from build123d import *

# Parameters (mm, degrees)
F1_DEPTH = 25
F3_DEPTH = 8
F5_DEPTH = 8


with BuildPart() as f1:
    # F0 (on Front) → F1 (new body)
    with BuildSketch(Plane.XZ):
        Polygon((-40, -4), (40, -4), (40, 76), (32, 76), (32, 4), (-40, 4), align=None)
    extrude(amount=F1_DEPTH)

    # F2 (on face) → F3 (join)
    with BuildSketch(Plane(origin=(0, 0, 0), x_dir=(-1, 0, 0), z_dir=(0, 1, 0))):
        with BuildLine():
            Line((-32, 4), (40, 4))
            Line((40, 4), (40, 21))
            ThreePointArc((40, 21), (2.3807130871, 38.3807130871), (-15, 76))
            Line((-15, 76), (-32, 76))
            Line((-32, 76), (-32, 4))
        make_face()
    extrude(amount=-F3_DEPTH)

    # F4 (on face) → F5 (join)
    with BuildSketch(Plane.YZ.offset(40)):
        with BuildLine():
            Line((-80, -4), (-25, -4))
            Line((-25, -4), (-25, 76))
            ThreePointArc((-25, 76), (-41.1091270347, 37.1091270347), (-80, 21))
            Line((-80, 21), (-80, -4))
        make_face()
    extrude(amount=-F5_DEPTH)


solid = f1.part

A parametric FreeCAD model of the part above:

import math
import FreeCAD as App
import Part
import Sketcher
from FreeCAD import Vector


def add_polygon(sketch, points):
    """Adds a closed chain of lines whose ends are joined by coincident constraints."""
    first, n = sketch.GeometryCount, len(points)
    for a, b in zip(points, points[1:] + points[:1]):
        sketch.addGeometry(Part.LineSegment(App.Vector(*a, 0), App.Vector(*b, 0)), False)
    for i in range(n):
        sketch.addConstraint(Sketcher.Constraint("Coincident", first + i, 2, first + (i + 1) % n, 1))

doc = App.newDocument("Part")
body = doc.addObject("PartDesign::Body", "Body")

# Sketch on XZ plane
sketch1 = doc.addObject("Sketcher::SketchObject", "Sketch")
body.addObject(sketch1)
sketch1.AttachmentSupport = (doc.XZ_Plane, [""])
sketch1.MapMode = "FlatFace"
add_polygon(sketch1, [(-40, -4), (40, -4), (40, 76), (32, 76), (32, 4), (-40, 4)])  # lines 0-5
sketch1.addConstraint([
    Sketcher.Constraint("Horizontal", 0),
    Sketcher.Constraint("Vertical", 1),
    Sketcher.Constraint("Horizontal", 2),
    Sketcher.Constraint("Vertical", 3),
    Sketcher.Constraint("Horizontal", 4),
    Sketcher.Constraint("Vertical", 5),
    Sketcher.Constraint("Symmetric", 0, 2, 4, 2, -1, 1),
    Sketcher.Constraint("Equal", 0, 1),
    Sketcher.Constraint("Equal", 4, 3),
    Sketcher.Constraint("DistanceX", 0, 1, 0, 2, 80.0),
    Sketcher.Constraint("DistanceX", 2, 2, 2, 1, 8.0),
])
pad1 = doc.addObject("PartDesign::Pad", "Pad")
body.addObject(pad1)
pad1.Profile = sketch1
pad1.Length = 25

# Sketch on XZ plane
sketch2 = doc.addObject("Sketcher::SketchObject", "Sketch001")
body.addObject(sketch2)
sketch2.AttachmentSupport = (doc.XZ_Plane, [""])
sketch2.MapMode = "FlatFace"
sketch2.addGeometry([
    Part.LineSegment(Vector(32, 4, 0), Vector(-40, 4, 0)),  # 0
    Part.LineSegment(Vector(-40, 4, 0), Vector(-40, 21, 0)),  # 1
    Part.ArcOfCircle(Part.Circle(Vector(-45, 81, 0), Vector(0, 0, 1), 60), math.radians(-85), math.radians(-5)),  # 2
    Part.LineSegment(Vector(15, 76, 0), Vector(32, 76, 0)),  # 3
    Part.LineSegment(Vector(32, 76, 0), Vector(32, 4, 0)),  # 4
], False)
sketch2.addConstraint([
    Sketcher.Constraint("Coincident", 0, 2, 1, 1),
    Sketcher.Constraint("Coincident", 1, 2, 2, 1),
    Sketcher.Constraint("Coincident", 2, 2, 3, 1),
    Sketcher.Constraint("Coincident", 3, 2, 4, 1),
    Sketcher.Constraint("Coincident", 4, 2, 0, 1),
    Sketcher.Constraint("Horizontal", 0),
    Sketcher.Constraint("Vertical", 1),
    Sketcher.Constraint("Horizontal", 3),
    Sketcher.Constraint("Vertical", 4),
    Sketcher.Constraint("Equal", 3, 1),
    Sketcher.Constraint("Equal", 0, 4),
    Sketcher.Constraint("Radius", 2, 60.0),
    Sketcher.Constraint("DistanceX", 0, 2, 0, 1, 72.0),
    Sketcher.Constraint("DistanceX", 3, 1, 3, 2, 17.0),
    Sketcher.Constraint("DistanceX", 0, 2, -1, 1, 40.0),
    Sketcher.Constraint("DistanceY", -1, 1, 0, 2, 4.0),
])
pad2 = doc.addObject("PartDesign::Pad", "Pad001")
body.addObject(pad2)
pad2.Profile = sketch2
pad2.Length = 8

# Sketch on YZ plane
sketch3 = doc.addObject("Sketcher::SketchObject", "Sketch002")
body.addObject(sketch3)
sketch3.AttachmentSupport = (doc.YZ_Plane, [""])
sketch3.MapMode = "FlatFace"
sketch3.AttachmentOffset = App.Placement(Vector(0, 0, 40), App.Rotation())
sketch3.addGeometry([
    Part.LineSegment(Vector(-80, -4, 0), Vector(-25, -4, 0)),
    Part.LineSegment(Vector(-25, -4, 0), Vector(-25, 76, 0)),
    Part.ArcOfCircle(Part.Circle(Vector(-80, 76, 0), Vector(0, 0, 1), 55), math.radians(-90), math.radians(0)),
    Part.LineSegment(Vector(-80, 21, 0), Vector(-80, -4, 0)),
], False)
sketch3.addConstraint([
    Sketcher.Constraint("Coincident", 0, 2, 1, 1),
    Sketcher.Constraint("Tangent", 1, 2, 2, 2),
    Sketcher.Constraint("Coincident", 2, 1, 3, 1),
    Sketcher.Constraint("Coincident", 3, 2, 0, 1),
    Sketcher.Constraint("Horizontal", 0),
    Sketcher.Constraint("Vertical", 1),
    Sketcher.Constraint("Vertical", 3),
    Sketcher.Constraint("Radius", 2, 55.0),
    Sketcher.Constraint("DistanceX", 0, 1, 0, 2, 55.0),
    Sketcher.Constraint("DistanceY", 1, 1, 1, 2, 80.0),
    Sketcher.Constraint("DistanceX", 2, 3, -1, 1, 80.0),
    Sketcher.Constraint("DistanceY", -1, 1, 2, 3, 76.0),
])
pad3 = doc.addObject("PartDesign::Pad", "Pad002")
body.addObject(pad3)
pad3.Profile = sketch3
pad3.Length = 8
pad3.Reversed = True

doc.recompute()
